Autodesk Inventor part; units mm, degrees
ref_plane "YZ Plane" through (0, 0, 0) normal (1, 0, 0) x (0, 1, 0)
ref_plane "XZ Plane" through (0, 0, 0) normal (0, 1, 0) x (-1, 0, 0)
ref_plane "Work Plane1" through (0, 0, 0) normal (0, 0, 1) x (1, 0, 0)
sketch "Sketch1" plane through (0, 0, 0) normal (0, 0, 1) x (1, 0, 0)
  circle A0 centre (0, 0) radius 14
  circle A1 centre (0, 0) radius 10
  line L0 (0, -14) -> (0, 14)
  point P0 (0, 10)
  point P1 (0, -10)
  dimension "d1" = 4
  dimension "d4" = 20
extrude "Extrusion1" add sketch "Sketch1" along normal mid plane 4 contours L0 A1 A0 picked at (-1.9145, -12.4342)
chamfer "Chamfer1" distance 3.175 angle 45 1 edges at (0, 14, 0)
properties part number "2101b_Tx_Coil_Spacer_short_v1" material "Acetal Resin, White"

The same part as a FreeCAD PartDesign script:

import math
import FreeCAD as App
import Part
import Sketcher
from FreeCAD import Vector


def edges_at(feature, points):
    """Names of the edges that pass closest to the given points."""
    edges = feature.Shape.Edges
    near = lambda p: min(range(len(edges)), key=lambda i: edges[i].distToShape(Part.Vertex(*p))[0])
    return sorted({f"Edge{near(p) + 1}" for p in points})

doc = App.newDocument("Part")
body = doc.addObject("PartDesign::Body", "Body")

# Sketch on XY plane
sketch1 = doc.addObject("Sketcher::SketchObject", "Sketch")
body.addObject(sketch1)
sketch1.AttachmentSupport = (doc.XY_Plane, [""])
sketch1.MapMode = "FlatFace"
sketch1.addGeometry([
    Part.LineSegment(Vector(0, 10, 0), Vector(0, 14, 0)),
    Part.ArcOfCircle(Part.Circle(Vector(0, 0, 0), Vector(0, 0, 1), 14), math.radians(90), math.radians(270)),
    Part.LineSegment(Vector(0, -14, 0), Vector(0, -10, 0)),
    Part.ArcOfCircle(Part.Circle(Vector(0, 0, 0), Vector(0, 0, 1), 10), math.radians(90), math.radians(270)),
], False)
sketch1.addConstraint([
    Sketcher.Constraint("Coincident", 0, 2, 1, 1),
    Sketcher.Constraint("Coincident", 1, 2, 2, 1),
    Sketcher.Constraint("Coincident", 2, 2, 3, 2),
    Sketcher.Constraint("Coincident", 3, 1, 0, 1),
    Sketcher.Constraint("Vertical", 0),
    Sketcher.Constraint("Vertical", 2),
    Sketcher.Constraint("Coincident", 1, 3, -1, 1),
    Sketcher.Constraint("Coincident", 3, 3, -1, 1),
    Sketcher.Constraint("PointOnObject", 0, 2, -2),
    Sketcher.Constraint("PointOnObject", 1, 2, -2),
    Sketcher.Constraint("Radius", 3, 10.0),
    Sketcher.Constraint("DistanceY", 0, 1, 0, 2, 4.0),
])
pad1 = doc.addObject("PartDesign::Pad", "Pad")
body.addObject(pad1)
pad1.Profile = sketch1
pad1.Length = 4
pad1.Midplane = True
doc.recompute()

chamfer = doc.addObject("PartDesign::Chamfer", "Chamfer")
body.addObject(chamfer)
chamfer.Base = (pad1, edges_at(pad1, [(0, 14, 0)]))
chamfer.Size = 3.175

doc.recompute()
